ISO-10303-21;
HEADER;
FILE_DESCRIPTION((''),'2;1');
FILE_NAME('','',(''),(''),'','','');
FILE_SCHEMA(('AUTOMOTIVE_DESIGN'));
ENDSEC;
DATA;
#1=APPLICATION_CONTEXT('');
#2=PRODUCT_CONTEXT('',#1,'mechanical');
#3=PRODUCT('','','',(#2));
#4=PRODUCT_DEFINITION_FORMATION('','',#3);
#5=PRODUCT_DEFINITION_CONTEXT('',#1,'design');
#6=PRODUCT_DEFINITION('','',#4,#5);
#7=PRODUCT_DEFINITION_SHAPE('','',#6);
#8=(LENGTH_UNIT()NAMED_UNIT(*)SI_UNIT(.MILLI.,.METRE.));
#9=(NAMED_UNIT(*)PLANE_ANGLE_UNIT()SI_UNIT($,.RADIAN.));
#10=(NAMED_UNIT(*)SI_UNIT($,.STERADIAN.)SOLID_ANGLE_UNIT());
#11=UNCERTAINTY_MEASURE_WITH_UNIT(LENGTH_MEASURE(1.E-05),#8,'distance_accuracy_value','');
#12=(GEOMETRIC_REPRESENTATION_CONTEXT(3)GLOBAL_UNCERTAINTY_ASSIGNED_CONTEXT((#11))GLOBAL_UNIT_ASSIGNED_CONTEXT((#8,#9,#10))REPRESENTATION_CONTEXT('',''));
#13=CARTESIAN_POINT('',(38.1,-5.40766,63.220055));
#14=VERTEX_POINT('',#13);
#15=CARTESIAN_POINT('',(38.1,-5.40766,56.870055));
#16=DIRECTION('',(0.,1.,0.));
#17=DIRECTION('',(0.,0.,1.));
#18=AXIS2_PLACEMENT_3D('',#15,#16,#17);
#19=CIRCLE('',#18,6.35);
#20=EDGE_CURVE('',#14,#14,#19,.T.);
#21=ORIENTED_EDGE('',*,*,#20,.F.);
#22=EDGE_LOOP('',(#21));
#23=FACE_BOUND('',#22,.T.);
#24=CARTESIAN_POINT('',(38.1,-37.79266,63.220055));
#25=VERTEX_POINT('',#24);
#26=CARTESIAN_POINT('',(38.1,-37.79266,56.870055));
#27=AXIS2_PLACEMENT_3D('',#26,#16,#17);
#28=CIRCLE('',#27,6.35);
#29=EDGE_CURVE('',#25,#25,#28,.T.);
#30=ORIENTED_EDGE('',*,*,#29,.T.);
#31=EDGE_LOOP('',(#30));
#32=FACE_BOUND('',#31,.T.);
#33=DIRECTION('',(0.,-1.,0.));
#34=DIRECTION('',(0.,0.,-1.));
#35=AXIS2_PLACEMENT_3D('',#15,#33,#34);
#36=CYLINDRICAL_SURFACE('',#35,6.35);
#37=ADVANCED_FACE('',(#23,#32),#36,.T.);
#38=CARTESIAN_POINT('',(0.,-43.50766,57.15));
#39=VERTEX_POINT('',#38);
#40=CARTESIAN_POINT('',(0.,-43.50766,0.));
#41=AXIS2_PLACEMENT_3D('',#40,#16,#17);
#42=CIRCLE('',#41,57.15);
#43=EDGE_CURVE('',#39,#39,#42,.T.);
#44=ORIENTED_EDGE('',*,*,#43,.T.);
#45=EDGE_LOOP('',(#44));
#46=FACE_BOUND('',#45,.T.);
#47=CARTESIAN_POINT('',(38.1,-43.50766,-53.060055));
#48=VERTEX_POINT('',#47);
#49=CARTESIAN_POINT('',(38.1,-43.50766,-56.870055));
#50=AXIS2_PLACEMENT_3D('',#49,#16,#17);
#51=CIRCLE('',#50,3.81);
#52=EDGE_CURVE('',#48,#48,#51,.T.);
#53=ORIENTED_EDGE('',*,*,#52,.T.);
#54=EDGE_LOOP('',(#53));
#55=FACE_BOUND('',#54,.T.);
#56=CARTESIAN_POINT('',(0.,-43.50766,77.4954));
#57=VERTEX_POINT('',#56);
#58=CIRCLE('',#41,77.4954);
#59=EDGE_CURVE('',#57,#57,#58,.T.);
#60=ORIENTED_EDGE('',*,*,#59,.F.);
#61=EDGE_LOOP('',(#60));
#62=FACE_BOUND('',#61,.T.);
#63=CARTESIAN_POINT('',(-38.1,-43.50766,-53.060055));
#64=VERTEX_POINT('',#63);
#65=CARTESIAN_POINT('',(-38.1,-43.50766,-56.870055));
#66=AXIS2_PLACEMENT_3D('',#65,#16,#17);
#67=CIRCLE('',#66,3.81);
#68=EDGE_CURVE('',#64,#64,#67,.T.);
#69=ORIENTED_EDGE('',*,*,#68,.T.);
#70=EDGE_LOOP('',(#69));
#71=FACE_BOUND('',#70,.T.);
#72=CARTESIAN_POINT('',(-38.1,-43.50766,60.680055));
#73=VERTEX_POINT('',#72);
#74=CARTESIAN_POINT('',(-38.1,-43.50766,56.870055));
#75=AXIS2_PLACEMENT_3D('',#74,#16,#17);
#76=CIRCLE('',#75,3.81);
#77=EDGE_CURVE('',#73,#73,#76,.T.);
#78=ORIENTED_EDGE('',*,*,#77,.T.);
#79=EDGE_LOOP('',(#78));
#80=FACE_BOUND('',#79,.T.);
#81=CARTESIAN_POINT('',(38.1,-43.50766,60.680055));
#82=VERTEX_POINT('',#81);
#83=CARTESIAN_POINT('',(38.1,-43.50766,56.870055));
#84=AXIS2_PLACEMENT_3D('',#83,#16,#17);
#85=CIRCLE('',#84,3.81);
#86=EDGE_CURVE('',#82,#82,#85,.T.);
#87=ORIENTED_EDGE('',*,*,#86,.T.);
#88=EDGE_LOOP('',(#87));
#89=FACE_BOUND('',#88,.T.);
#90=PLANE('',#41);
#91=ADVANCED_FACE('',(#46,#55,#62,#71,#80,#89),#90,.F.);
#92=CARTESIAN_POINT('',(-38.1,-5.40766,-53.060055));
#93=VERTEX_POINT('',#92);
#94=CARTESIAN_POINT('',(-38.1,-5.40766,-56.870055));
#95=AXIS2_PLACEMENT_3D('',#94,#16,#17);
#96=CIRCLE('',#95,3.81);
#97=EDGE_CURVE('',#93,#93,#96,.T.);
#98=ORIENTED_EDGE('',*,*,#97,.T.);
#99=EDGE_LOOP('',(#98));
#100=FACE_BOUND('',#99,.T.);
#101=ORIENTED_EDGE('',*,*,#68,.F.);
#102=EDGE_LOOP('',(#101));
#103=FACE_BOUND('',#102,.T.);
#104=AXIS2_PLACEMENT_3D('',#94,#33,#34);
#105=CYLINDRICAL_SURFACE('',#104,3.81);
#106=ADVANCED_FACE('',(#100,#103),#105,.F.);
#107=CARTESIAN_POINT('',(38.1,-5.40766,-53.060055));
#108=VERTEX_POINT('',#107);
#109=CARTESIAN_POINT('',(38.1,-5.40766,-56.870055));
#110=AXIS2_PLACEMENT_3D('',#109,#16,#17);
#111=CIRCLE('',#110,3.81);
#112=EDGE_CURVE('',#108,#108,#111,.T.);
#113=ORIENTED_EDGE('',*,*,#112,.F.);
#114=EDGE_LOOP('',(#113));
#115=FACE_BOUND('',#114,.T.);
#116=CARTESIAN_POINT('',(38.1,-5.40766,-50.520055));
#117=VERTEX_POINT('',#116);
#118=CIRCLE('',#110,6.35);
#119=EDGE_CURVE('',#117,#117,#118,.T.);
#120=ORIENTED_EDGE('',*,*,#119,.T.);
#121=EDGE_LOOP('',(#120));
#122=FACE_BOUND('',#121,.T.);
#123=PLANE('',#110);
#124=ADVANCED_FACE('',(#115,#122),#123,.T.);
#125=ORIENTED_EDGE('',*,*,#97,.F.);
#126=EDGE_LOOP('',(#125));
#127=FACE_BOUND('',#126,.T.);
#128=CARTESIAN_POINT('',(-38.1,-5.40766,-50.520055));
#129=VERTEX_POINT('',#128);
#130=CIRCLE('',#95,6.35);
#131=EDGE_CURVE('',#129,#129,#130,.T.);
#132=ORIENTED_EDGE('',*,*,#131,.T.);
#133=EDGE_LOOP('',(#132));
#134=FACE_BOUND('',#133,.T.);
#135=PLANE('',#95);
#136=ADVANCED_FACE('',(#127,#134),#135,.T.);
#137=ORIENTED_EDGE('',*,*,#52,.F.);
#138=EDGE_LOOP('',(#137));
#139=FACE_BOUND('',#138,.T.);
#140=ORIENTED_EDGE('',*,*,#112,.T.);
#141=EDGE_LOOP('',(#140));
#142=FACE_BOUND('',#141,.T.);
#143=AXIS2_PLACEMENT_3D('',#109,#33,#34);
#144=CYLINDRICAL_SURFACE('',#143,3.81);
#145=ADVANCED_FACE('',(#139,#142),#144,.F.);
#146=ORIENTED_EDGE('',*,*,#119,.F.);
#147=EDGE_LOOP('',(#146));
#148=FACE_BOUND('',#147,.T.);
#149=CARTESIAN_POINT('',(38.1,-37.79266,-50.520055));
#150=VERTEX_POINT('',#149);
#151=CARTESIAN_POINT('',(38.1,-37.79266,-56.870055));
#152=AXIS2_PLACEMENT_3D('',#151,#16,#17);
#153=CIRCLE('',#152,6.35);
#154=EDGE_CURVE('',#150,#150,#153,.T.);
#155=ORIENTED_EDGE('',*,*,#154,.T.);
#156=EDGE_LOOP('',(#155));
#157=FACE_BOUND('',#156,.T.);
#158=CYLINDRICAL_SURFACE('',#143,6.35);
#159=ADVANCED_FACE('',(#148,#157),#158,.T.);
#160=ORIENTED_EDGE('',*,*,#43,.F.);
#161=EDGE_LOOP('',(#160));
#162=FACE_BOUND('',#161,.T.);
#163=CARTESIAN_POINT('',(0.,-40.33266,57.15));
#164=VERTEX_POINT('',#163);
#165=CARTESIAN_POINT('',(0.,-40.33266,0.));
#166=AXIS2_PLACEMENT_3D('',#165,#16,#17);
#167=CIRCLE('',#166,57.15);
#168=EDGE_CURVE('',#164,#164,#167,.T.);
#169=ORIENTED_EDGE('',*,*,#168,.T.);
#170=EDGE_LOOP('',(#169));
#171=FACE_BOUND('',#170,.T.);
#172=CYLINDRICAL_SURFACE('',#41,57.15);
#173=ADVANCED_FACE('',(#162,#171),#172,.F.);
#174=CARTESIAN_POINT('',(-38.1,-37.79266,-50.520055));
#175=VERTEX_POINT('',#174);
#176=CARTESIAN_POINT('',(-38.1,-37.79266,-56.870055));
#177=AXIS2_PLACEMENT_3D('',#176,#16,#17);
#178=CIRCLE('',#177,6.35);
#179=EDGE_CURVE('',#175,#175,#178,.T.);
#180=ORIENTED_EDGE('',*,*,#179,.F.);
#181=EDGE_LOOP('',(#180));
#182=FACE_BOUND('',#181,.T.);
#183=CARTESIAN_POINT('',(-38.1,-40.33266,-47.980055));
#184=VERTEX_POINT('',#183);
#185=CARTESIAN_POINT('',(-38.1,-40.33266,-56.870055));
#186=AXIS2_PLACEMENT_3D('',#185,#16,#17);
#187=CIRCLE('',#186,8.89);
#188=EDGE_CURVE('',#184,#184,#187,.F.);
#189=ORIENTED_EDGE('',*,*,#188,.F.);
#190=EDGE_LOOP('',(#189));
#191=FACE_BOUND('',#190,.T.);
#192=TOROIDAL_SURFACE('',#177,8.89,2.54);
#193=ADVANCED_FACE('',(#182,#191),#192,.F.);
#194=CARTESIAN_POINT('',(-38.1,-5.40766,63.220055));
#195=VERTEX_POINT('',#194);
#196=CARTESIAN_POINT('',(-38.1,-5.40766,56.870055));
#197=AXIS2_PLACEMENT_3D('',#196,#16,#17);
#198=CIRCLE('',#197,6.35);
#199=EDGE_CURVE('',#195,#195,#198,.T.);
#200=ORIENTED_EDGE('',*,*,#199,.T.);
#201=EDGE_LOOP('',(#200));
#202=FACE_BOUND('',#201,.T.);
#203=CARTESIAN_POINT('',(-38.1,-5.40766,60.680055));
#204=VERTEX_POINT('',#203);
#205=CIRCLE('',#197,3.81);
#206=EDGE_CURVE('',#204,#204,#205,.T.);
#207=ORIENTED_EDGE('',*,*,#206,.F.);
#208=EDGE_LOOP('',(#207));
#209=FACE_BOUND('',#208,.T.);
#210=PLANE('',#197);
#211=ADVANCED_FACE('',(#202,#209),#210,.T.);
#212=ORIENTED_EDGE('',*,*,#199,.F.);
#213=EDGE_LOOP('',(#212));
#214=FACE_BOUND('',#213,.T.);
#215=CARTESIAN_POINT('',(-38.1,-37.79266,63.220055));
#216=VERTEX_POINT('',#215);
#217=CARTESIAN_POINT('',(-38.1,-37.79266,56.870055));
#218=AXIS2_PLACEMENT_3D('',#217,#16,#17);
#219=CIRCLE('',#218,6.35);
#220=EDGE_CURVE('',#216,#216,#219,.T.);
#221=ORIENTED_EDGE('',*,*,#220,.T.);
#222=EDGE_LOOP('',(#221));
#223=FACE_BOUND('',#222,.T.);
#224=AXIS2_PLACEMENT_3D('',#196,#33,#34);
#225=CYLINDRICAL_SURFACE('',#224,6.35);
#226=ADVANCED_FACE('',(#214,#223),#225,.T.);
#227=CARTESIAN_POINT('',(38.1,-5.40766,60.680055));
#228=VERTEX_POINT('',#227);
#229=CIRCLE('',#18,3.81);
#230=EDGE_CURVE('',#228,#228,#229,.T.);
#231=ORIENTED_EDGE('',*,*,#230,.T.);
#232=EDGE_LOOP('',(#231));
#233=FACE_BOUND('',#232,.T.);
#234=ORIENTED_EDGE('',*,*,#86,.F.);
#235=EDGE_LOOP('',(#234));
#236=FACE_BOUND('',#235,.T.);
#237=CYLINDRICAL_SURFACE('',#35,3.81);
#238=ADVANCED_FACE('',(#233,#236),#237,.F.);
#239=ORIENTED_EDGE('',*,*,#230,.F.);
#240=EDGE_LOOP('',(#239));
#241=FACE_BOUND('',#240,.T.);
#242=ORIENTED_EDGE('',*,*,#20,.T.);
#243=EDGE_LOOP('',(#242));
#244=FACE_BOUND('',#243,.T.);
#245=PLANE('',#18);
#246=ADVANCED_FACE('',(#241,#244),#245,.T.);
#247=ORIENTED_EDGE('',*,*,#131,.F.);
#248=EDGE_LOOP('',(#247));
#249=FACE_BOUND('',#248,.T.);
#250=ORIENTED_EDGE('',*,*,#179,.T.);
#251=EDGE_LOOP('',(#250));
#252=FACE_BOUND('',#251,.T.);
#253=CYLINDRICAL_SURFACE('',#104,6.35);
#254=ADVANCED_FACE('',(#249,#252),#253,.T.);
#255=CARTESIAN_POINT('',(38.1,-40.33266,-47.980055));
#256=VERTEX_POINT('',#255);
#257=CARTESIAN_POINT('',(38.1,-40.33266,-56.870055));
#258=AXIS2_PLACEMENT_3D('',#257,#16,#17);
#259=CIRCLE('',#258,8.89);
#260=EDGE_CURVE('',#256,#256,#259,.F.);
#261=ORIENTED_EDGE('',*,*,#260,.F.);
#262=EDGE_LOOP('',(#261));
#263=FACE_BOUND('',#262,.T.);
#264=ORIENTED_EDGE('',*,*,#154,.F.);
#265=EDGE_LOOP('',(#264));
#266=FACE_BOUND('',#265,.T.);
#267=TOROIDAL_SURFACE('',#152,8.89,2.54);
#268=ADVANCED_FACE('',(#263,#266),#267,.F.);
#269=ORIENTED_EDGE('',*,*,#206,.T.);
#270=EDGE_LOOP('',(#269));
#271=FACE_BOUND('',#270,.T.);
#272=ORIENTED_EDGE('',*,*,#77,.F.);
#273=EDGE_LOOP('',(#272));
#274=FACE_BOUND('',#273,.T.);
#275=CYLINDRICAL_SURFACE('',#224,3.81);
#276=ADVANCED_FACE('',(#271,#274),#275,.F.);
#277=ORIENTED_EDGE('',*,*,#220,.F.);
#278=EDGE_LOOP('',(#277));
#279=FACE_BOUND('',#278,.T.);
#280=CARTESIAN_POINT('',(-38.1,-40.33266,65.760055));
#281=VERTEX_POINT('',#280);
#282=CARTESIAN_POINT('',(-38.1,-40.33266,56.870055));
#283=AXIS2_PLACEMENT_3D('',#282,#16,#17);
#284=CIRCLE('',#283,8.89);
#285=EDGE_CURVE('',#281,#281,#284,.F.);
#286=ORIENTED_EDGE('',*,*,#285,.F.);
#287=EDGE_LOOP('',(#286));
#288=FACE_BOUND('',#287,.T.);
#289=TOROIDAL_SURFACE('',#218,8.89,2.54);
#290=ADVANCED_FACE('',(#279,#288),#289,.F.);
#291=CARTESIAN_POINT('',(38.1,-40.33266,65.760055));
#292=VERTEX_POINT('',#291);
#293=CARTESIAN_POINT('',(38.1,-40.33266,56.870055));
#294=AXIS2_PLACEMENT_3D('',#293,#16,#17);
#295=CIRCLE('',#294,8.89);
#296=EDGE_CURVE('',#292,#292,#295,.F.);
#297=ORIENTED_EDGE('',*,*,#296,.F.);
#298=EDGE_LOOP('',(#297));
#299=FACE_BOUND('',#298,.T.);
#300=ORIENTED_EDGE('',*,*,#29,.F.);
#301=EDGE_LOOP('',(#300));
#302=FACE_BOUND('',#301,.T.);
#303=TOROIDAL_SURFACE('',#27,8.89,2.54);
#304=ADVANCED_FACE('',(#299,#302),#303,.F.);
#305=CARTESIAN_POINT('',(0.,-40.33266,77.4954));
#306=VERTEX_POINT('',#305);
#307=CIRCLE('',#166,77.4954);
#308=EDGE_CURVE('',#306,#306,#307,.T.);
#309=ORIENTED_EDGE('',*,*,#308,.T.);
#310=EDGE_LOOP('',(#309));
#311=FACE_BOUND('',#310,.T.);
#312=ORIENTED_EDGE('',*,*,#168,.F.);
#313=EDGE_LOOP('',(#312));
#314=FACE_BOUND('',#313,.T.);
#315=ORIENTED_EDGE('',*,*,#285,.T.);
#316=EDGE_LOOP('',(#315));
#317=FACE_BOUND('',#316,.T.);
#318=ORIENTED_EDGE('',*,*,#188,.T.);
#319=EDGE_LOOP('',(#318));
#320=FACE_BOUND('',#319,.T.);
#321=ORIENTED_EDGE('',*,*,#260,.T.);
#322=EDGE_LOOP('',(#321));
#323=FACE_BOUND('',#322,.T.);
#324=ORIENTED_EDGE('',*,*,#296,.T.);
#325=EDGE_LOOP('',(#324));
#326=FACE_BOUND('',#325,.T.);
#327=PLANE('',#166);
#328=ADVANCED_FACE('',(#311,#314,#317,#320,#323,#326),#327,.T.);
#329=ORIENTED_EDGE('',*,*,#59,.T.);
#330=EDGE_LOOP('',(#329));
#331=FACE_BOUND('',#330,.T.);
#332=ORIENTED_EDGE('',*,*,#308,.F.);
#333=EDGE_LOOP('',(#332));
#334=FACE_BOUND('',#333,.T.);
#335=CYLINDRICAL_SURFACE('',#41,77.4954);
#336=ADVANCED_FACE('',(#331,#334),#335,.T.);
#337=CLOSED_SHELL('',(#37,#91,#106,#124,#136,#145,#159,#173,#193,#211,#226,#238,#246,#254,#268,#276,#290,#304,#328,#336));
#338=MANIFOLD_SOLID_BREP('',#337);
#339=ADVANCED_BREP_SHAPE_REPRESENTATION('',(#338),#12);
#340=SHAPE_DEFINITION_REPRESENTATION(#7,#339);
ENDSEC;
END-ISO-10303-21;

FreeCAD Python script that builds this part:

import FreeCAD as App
import Part
import Sketcher

V = App.Vector
Q = App.Units.Quantity


def edges_at(feature, points):
    """Names of the edges that pass closest to the given points."""
    edges = feature.Shape.Edges
    near = lambda p: min(range(len(edges)), key=lambda i: edges[i].distToShape(Part.Vertex(*p))[0])
    return sorted({f"Edge{near(p) + 1}" for p in points})

doc = App.newDocument("Part")
params = doc.addObject("Spreadsheet::Sheet", "Params")
for row, (alias, value) in enumerate([
    ("sketch1_diameter", "0.5 in"),
    ("sketch1_diameter2", "0.3 in"),
    ("pad1_length", "1.375 in"),
    ("sketch2_diameter", "0.5 in"),
    ("sketch2_diameter2", "0.3 in"),
    ("pad2_length", "1.375 in"),
    ("sketch3_diameter", "0.5 in"),
    ("sketch3_diameter2", "0.3 in"),
    ("pad3_length", "1.375 in"),
    ("sketch4_diameter", "0.5 in"),
    ("sketch4_diameter2", "0.3 in"),
    ("pad4_length", "1.375 in"),
    ("sketch5_diameter", "4.5 in"),
    ("sketch5_diameter2", "6.102 in"),
    ("pad5_length", "0.125 in"),
    ("sketch6_diameter", "0.3 in"),
    ("fillet_radius", "0.1 in"),
], start=1):
    params.set(f"A{row}", alias)
    params.set(f"B{row}", "=" + value)
    params.setAlias(f"B{row}", alias)

body = doc.addObject("PartDesign::Body", "Body")

# Sketch on XZ plane
sketch1 = doc.addObject("Sketcher::SketchObject", "Sketch")
body.addObject(sketch1)
sketch1.AttachmentSupport = (doc.XZ_Plane, [""])
sketch1.MapMode = "FlatFace"
sketch1.AttachmentOffset = App.Placement(V(0, 0, 1.5879 * 25.4), App.Rotation())
sketch1.addGeometry([
    Part.Circle(V(-38.1, -56.9, 0), V(0, 0, 1), 6.3),
    Part.Circle(V(-38.1, -56.9, 0), V(0, 0, 1), 3.8),
], False)
sketch1.addConstraint([
    Sketcher.Constraint("Coincident", 1, 3, 0, 3),
    Sketcher.Constraint("Diameter", 0, Q("0.5 in")),
    Sketcher.Constraint("Diameter", 1, Q("0.3 in")),
    Sketcher.Constraint("DistanceX", 0, 3, -1, 1, Q("1.5 in")),
    Sketcher.Constraint("DistanceY", 0, 3, -1, 1, Q("56.870055 mm")),
])
sketch1.setExpression("Constraints[1]", "Params.sketch1_diameter")
sketch1.setExpression("Constraints[2]", "Params.sketch1_diameter2")
pad1 = doc.addObject("PartDesign::Pad", "Pad")
body.addObject(pad1)
pad1.Profile = sketch1
pad1.setExpression("Length", "Params.pad1_length")
pad1.Reversed = True
body2 = doc.addObject("PartDesign::Body", "Body001")

# Sketch on XZ plane
sketch2 = doc.addObject("Sketcher::SketchObject", "Sketch001")
body2.addObject(sketch2)
sketch2.AttachmentSupport = (doc.getObject("XZ_Plane001"), [""])
sketch2.MapMode = "FlatFace"
sketch2.AttachmentOffset = App.Placement(V(0, 0, 1.5879 * 25.4), App.Rotation())
sketch2.addGeometry([
    Part.Circle(V(38.1, -56.9, 0), V(0, 0, 1), 6.3),
    Part.Circle(V(38.1, -56.9, 0), V(0, 0, 1), 3.8),
], False)
sketch2.addConstraint([
    Sketcher.Constraint("Coincident", 1, 3, 0, 3),
    Sketcher.Constraint("Diameter", 0, Q("0.5 in")),
    Sketcher.Constraint("Diameter", 1, Q("0.3 in")),
    Sketcher.Constraint("DistanceX", -1, 1, 0, 3, Q("1.5 in")),
    Sketcher.Constraint("DistanceY", 0, 3, -1, 1, Q("56.870055 mm")),
])
sketch2.setExpression("Constraints[1]", "Params.sketch2_diameter")
sketch2.setExpression("Constraints[2]", "Params.sketch2_diameter2")
pad2 = doc.addObject("PartDesign::Pad", "Pad001")
body2.addObject(pad2)
pad2.Profile = sketch2
pad2.setExpression("Length", "Params.pad2_length")
pad2.Reversed = True
body3 = doc.addObject("PartDesign::Body", "Body002")

# Sketch on XZ plane
sketch3 = doc.addObject("Sketcher::SketchObject", "Sketch002")
body3.addObject(sketch3)
sketch3.AttachmentSupport = (doc.getObject("XZ_Plane002"), [""])
sketch3.MapMode = "FlatFace"
sketch3.AttachmentOffset = App.Placement(V(0, 0, 1.5879 * 25.4), App.Rotation())
sketch3.addGeometry([
    Part.Circle(V(38.1, 56.9, 0), V(0, 0, 1), 6.3),
    Part.Circle(V(38.1, 56.9, 0), V(0, 0, 1), 3.8),
], False)
sketch3.addConstraint([
    Sketcher.Constraint("Coincident", 1, 3, 0, 3),
    Sketcher.Constraint("Diameter", 0, Q("0.5 in")),
    Sketcher.Constraint("Diameter", 1, Q("0.3 in")),
    Sketcher.Constraint("DistanceX", -1, 1, 0, 3, Q("1.5 in")),
    Sketcher.Constraint("DistanceY", -1, 1, 0, 3, Q("56.870055 mm")),
])
sketch3.setExpression("Constraints[1]", "Params.sketch3_diameter")
sketch3.setExpression("Constraints[2]", "Params.sketch3_diameter2")
pad3 = doc.addObject("PartDesign::Pad", "Pad002")
body3.addObject(pad3)
pad3.Profile = sketch3
pad3.setExpression("Length", "Params.pad3_length")
pad3.Reversed = True
body4 = doc.addObject("PartDesign::Body", "Body003")

# Sketch on XZ plane
sketch4 = doc.addObject("Sketcher::SketchObject", "Sketch003")
body4.addObject(sketch4)
sketch4.AttachmentSupport = (doc.getObject("XZ_Plane003"), [""])
sketch4.MapMode = "FlatFace"
sketch4.AttachmentOffset = App.Placement(V(0, 0, 1.5879 * 25.4), App.Rotation())
sketch4.addGeometry([
    Part.Circle(V(-38.1, 56.9, 0), V(0, 0, 1), 6.3),
    Part.Circle(V(-38.1, 56.9, 0), V(0, 0, 1), 3.8),
], False)
sketch4.addConstraint([
    Sketcher.Constraint("Coincident", 1, 3, 0, 3),
    Sketcher.Constraint("Diameter", 0, Q("0.5 in")),
    Sketcher.Constraint("Diameter", 1, Q("0.3 in")),
    Sketcher.Constraint("DistanceX", 0, 3, -1, 1, Q("1.5 in")),
    Sketcher.Constraint("DistanceY", -1, 1, 0, 3, Q("56.870055 mm")),
])
sketch4.setExpression("Constraints[1]", "Params.sketch4_diameter")
sketch4.setExpression("Constraints[2]", "Params.sketch4_diameter2")
pad4 = doc.addObject("PartDesign::Pad", "Pad003")
body4.addObject(pad4)
pad4.Profile = sketch4
pad4.setExpression("Length", "Params.pad4_length")
pad4.Reversed = True
body.AllowCompound = True
doc.recompute()

boolean = doc.addObject("PartDesign::Boolean", "Boolean")
body.addObject(boolean)
boolean.Type = "Fuse"
boolean.addObjects([body2])
doc.recompute()

boolean2 = doc.addObject("PartDesign::Boolean", "Boolean001")
body.addObject(boolean2)
boolean2.Type = "Fuse"
boolean2.addObjects([body3])
doc.recompute()

boolean3 = doc.addObject("PartDesign::Boolean", "Boolean002")
body.addObject(boolean3)
boolean3.Type = "Fuse"
boolean3.addObjects([body4])

# Sketch on XZ plane
sketch5 = doc.addObject("Sketcher::SketchObject", "Sketch004")
body.addObject(sketch5)
sketch5.AttachmentSupport = (doc.XZ_Plane, [""])
sketch5.MapMode = "FlatFace"
sketch5.AttachmentOffset = App.Placement(V(0, 0, 1.5879 * 25.4), App.Rotation())
sketch5.addGeometry([
    Part.Circle(V(0, 0, 0), V(0, 0, 1), 77),
    Part.Circle(V(0, 0, 0), V(0, 0, 1), 57),
], False)
sketch5.addConstraint([
    Sketcher.Constraint("Coincident", 0, 3, -1, 1),
    Sketcher.Constraint("Coincident", 1, 3, -1, 1),
    Sketcher.Constraint("Diameter", 1, Q("4.5 in")),
    Sketcher.Constraint("Diameter", 0, Q("6.102 in")),
])
sketch5.setExpression("Constraints[2]", "Params.sketch5_diameter")
sketch5.setExpression("Constraints[3]", "Params.sketch5_diameter2")
pad5 = doc.addObject("PartDesign::Pad", "Pad004")
body.addObject(pad5)
pad5.Profile = sketch5
pad5.setExpression("Length", "Params.pad5_length")

# Sketch on XZ plane
sketch6 = doc.addObject("Sketcher::SketchObject", "Sketch005")
body.addObject(sketch6)
sketch6.AttachmentSupport = (doc.XZ_Plane, [""])
sketch6.MapMode = "FlatFace"
sketch6.AttachmentOffset = App.Placement(V(0, 0, 1.5879 * 25.4), App.Rotation())
sketch6.addGeometry([
    Part.Circle(V(-38.1, 56.9, 0), V(0, 0, 1), 3.8),
    Part.Circle(V(38.1, 56.9, 0), V(0, 0, 1), 3.8),
    Part.Circle(V(38.1, -56.9, 0), V(0, 0, 1), 3.8),
    Part.Circle(V(-38.1, -56.9, 0), V(0, 0, 1), 3.8),
], False)
sketch6.addConstraint([
    Sketcher.Constraint("Equal", 0, 1),
    Sketcher.Constraint("Equal", 1, 2),
    Sketcher.Constraint("Equal", 2, 3),
    Sketcher.Constraint("Symmetric", 0, 3, 2, 3, -1, 1),
    Sketcher.Constraint("Symmetric", 1, 3, 3, 3, -1, 1),
    Sketcher.Constraint("Symmetric", 0, 3, 1, 3, -2),
    Sketcher.Constraint("Diameter", 0, Q("0.3 in")),
    Sketcher.Constraint("DistanceX", 0, 3, 1, 3, Q("3 in")),
    Sketcher.Constraint("DistanceY", 2, 3, 1, 3, Q("113.740111 mm")),
])
sketch6.setExpression("Constraints[6]", "Params.sketch6_diameter")
pocket1 = doc.addObject("PartDesign::Pocket", "Pocket")
body.addObject(pocket1)
pocket1.Profile = sketch6
pocket1.Type = "ThroughAll"
pocket1.Reversed = True
doc.recompute()

fillet = doc.addObject("PartDesign::Fillet", "Fillet")
body.addObject(fillet)
fillet.Base = (pocket1, edges_at(pocket1, [
    (-44.45, -40.333, -56.87),
    (31.75, -40.333, -56.87),
    (31.75, -40.333, 56.87),
    (-44.45, -40.333, 56.87),
]))
fillet.setExpression("Radius", "Params.fillet_radius")

doc.recompute()
